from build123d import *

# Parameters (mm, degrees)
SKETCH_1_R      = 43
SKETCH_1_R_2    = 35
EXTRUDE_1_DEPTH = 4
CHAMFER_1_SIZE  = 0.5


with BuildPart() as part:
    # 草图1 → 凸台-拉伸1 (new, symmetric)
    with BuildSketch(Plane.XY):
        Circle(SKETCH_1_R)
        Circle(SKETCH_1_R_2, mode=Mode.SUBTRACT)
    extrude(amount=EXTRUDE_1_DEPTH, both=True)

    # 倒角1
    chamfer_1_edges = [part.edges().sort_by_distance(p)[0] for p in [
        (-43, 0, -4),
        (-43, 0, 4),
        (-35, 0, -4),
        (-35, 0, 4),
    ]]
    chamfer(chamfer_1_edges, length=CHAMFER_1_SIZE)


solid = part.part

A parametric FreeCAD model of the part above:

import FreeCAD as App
import Part
import Sketcher
from FreeCAD import Vector


def edges_at(feature, points):
    """Names of the edges that pass closest to the given points."""
    edges = feature.Shape.Edges
    near = lambda p: min(range(len(edges)), key=lambda i: edges[i].distToShape(Part.Vertex(*p))[0])
    return sorted({f"Edge{near(p) + 1}" for p in points})

doc = App.newDocument("Part")
body = doc.addObject("PartDesign::Body", "Body")

# Sketch on XY plane
sketch1 = doc.addObject("Sketcher::SketchObject", "Sketch")
body.addObject(sketch1)
sketch1.AttachmentSupport = (doc.XY_Plane, [""])
sketch1.MapMode = "FlatFace"
sketch1.addGeometry([
    Part.Circle(Vector(0, 0, 0), Vector(0, 0, 1), 43),
    Part.Circle(Vector(0, 0, 0), Vector(0, 0, 1), 35),
], False)
sketch1.addConstraint([
    Sketcher.Constraint("Coincident", 0, 3, -1, 1),
    Sketcher.Constraint("Coincident", 1, 3, -1, 1),
    Sketcher.Constraint("Diameter", 0, 86.0),
    Sketcher.Constraint("Diameter", 1, 70.0),
])
pad1 = doc.addObject("PartDesign::Pad", "Pad")
body.addObject(pad1)
pad1.Profile = sketch1
pad1.Length = 8
pad1.Midplane = True
doc.recompute()

chamfer = doc.addObject("PartDesign::Chamfer", "Chamfer")
body.addObject(chamfer)
chamfer.Base = (pad1, edges_at(pad1, [
    (-43, 0, -4),
    (-43, 0, 4),
    (-35, 0, -4),
    (-35, 0, 4),
]))
chamfer.Size = 0.5

doc.recompute()
